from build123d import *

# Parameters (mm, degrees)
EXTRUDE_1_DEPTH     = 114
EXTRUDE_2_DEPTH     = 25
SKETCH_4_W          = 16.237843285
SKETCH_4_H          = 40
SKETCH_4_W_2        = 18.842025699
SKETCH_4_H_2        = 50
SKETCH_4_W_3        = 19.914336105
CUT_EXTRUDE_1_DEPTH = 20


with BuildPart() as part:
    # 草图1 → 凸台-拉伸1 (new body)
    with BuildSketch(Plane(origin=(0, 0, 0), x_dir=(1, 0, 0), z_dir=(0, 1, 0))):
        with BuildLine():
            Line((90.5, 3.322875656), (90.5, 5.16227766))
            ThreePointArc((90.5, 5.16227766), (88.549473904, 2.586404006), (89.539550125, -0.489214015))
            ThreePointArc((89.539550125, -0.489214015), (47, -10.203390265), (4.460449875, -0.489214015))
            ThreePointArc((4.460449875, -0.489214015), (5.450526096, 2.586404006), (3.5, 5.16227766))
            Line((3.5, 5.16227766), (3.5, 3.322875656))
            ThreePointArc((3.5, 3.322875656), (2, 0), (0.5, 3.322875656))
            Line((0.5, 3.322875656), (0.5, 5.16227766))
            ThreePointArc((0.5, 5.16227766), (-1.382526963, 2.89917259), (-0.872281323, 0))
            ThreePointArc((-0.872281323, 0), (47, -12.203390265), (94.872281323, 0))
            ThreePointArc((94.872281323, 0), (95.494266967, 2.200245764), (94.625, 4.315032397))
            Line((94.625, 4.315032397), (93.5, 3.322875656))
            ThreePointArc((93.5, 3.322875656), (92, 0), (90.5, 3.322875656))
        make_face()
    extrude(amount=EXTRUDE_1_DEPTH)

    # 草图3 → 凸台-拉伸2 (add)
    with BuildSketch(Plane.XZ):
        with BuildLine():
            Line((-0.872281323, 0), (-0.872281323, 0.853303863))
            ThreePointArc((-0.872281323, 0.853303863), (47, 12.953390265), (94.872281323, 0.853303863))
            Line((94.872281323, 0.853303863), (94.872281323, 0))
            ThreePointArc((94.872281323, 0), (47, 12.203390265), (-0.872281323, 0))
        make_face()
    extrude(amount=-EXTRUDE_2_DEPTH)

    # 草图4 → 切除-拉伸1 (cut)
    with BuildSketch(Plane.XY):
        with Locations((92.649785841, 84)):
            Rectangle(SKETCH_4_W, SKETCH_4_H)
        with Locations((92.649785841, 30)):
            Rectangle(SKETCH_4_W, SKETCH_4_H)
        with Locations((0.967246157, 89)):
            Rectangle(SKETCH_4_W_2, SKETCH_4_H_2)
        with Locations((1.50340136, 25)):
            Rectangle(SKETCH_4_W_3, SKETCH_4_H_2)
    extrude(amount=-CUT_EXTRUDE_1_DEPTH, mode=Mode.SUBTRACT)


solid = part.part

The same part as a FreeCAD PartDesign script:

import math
import FreeCAD as App
import Part
import Sketcher
from FreeCAD import Vector
Q = App.Units.Quantity


def add_polygon(sketch, points):
    """Adds a closed chain of lines whose ends are joined by coincident constraints."""
    first, n = sketch.GeometryCount, len(points)
    for a, b in zip(points, points[1:] + points[:1]):
        sketch.addGeometry(Part.LineSegment(App.Vector(*a, 0), App.Vector(*b, 0)), False)
    for i in range(n):
        sketch.addConstraint(Sketcher.Constraint("Coincident", first + i, 2, first + (i + 1) % n, 1))

doc = App.newDocument("Part")
body = doc.addObject("PartDesign::Body", "Body")

sketch1 = body.newObject("Sketcher::SketchObject", "Sketch")
sketch1.AttachmentSupport = (doc.getObject("XZ_Plane"), [""])
sketch1.MapMode = "FlatFace"
sketch1.addGeometry(Part.LineSegment(Vector(90.5, -3.3, 0), Vector(90.5, -5.2, 0)), False)
sketch1.addGeometry(Part.ArcOfCircle(Part.Circle(Vector(92, -2, 0), Vector(0, 0, 1), 3.5), math.radians(135), math.radians(245)), False)
sketch1.addGeometry(Part.ArcOfCircle(Part.Circle(Vector(47, -87.8, 0), Vector(0, 0, 1), 98), math.radians(64), math.radians(116)), False)
sketch1.addGeometry(Part.ArcOfCircle(Part.Circle(Vector(2, -2, 0), Vector(0, 0, 1), 3.5), math.radians(-65), math.radians(45)), False)
sketch1.addGeometry(Part.LineSegment(Vector(3.5, -5.2, 0), Vector(3.5, -3.3, 0)), False)
sketch1.addGeometry(Part.ArcOfCircle(Part.Circle(Vector(2, -2, 0), Vector(0, 0, 1), 2), math.radians(-41), math.radians(221)), False)
sketch1.addGeometry(Part.LineSegment(Vector(0.5, -3.3, 0), Vector(0.5, -5.2, 0)), False)
sketch1.addGeometry(Part.ArcOfCircle(Part.Circle(Vector(2, -2, 0), Vector(0, 0, 1), 3.5), math.radians(145), math.radians(245)), False)
sketch1.addGeometry(Part.ArcOfCircle(Part.Circle(Vector(47, -87.8, 0), Vector(0, 0, 1), 100), math.radians(61), math.radians(119)), False)
sketch1.addGeometry(Part.ArcOfCircle(Part.Circle(Vector(92, -2, 0), Vector(0, 0, 1), 3.5), math.radians(-41), math.radians(35)), False)
sketch1.addGeometry(Part.LineSegment(Vector(94.6, -4.3, 0), Vector(93.5, -3.3, 0)), False)
sketch1.addGeometry(Part.ArcOfCircle(Part.Circle(Vector(92, -2, 0), Vector(0, 0, 1), 2), math.radians(-41), math.radians(221)), False)
sketch1.addConstraint(Sketcher.Constraint("Coincident", 0, 2, 1, 2))
sketch1.addConstraint(Sketcher.Constraint("Coincident", 1, 1, 2, 1))
sketch1.addConstraint(Sketcher.Constraint("Coincident", 2, 2, 3, 2))
sketch1.addConstraint(Sketcher.Constraint("Coincident", 3, 1, 4, 1))
sketch1.addConstraint(Sketcher.Constraint("Coincident", 4, 2, 5, 1))
sketch1.addConstraint(Sketcher.Constraint("Coincident", 5, 2, 6, 1))
sketch1.addConstraint(Sketcher.Constraint("Coincident", 6, 2, 7, 2))
sketch1.addConstraint(Sketcher.Constraint("Coincident", 7, 1, 8, 2))
sketch1.addConstraint(Sketcher.Constraint("Coincident", 8, 1, 9, 2))
sketch1.addConstraint(Sketcher.Constraint("Coincident", 9, 1, 10, 1))
sketch1.addConstraint(Sketcher.Constraint("Coincident", 10, 2, 11, 1))
sketch1.addConstraint(Sketcher.Constraint("Coincident", 11, 2, 0, 1))
sketch1.addConstraint(Sketcher.Constraint("Vertical", 0))
sketch1.addConstraint(Sketcher.Constraint("Vertical", 4))
sketch1.addConstraint(Sketcher.Constraint("Vertical", 6))
sketch1.addConstraint(Sketcher.Constraint("Coincident", 5, 3, 3, 3))
sketch1.addConstraint(Sketcher.Constraint("Coincident", 7, 3, 3, 3))
sketch1.addConstraint(Sketcher.Constraint("Coincident", 8, 3, 2, 3))
sketch1.addConstraint(Sketcher.Constraint("Coincident", 9, 3, 1, 3))
sketch1.addConstraint(Sketcher.Constraint("Coincident", 11, 3, 1, 3))
sketch1.addConstraint(Sketcher.Constraint("Equal", 1, 3))
sketch1.addConstraint(Sketcher.Constraint("Equal", 3, 7))
sketch1.addConstraint(Sketcher.Constraint("Equal", 7, 9))
sketch1.addConstraint(Sketcher.Constraint("Equal", 5, 11))
sketch1.addConstraint(Sketcher.Constraint("PointOnObject", 7, 1, -1))
sketch1.addConstraint(Sketcher.Constraint("PointOnObject", 8, 1, -1))
sketch1.addConstraint(Sketcher.Constraint("Horizontal", 1, 3, 3, 3))
sketch1.addConstraint(Sketcher.Constraint("Horizontal", 0, 2, 3, 1))
sketch1.addConstraint(Sketcher.Constraint("Horizontal", 4, 2, 5, 2))
sketch1.addConstraint(Sketcher.Constraint("Horizontal", 5, 2, 10, 2))
sketch1.addConstraint(Sketcher.Constraint("Radius", 2, Q("98 mm")))
sketch1.addConstraint(Sketcher.Constraint("Radius", 5, Q("2 mm")))
sketch1.addConstraint(Sketcher.Constraint("Radius", 8, Q("100 mm")))
sketch1.addConstraint(Sketcher.Constraint("Radius", 1, Q("3.5 mm")))
sketch1.addConstraint(Sketcher.Constraint("DistanceX", -1, 1, 1, 3, Q("92 mm")))
sketch1.addConstraint(Sketcher.Constraint("DistanceY", 1, 3, -1, 1, Q("2 mm")))
sketch1.addConstraint(Sketcher.Constraint("DistanceX", -1, 1, 2, 3, Q("47 mm")))
sketch1.addConstraint(Sketcher.Constraint("DistanceX", 5, 2, 4, 2, Q("3 mm")))
sketch1.addConstraint(Sketcher.Constraint("DistanceX", -1, 1, 9, 1, Q("94.625 mm")))
pad1 = body.newObject("PartDesign::Pad", "Pad")
pad1.Profile = sketch1
pad1.Length = 114
pad1.Reversed = True

sketch2 = body.newObject("Sketcher::SketchObject", "Sketch001")
sketch2.AttachmentSupport = (doc.getObject("XZ_Plane"), [""])
sketch2.MapMode = "FlatFace"
sketch2.addGeometry(Part.LineSegment(Vector(-0.9, 0.9, 0), Vector(-0.9, 0, 0)), False)
sketch2.addGeometry(Part.ArcOfCircle(Part.Circle(Vector(47, -87.8, 0), Vector(0, 0, 1), 100), math.radians(61), math.radians(119)), False)
sketch2.addGeometry(Part.LineSegment(Vector(94.9, 0, 0), Vector(94.9, 0.9, 0)), False)
sketch2.addGeometry(Part.ArcOfCircle(Part.Circle(Vector(47, -87.8, 0), Vector(0, 0, 1), 100.8), math.radians(62), math.radians(118)), False)
sketch2.addConstraint(Sketcher.Constraint("Coincident", 0, 2, 1, 2))
sketch2.addConstraint(Sketcher.Constraint("Coincident", 1, 1, 2, 1))
sketch2.addConstraint(Sketcher.Constraint("Coincident", 2, 2, 3, 1))
sketch2.addConstraint(Sketcher.Constraint("Coincident", 3, 2, 0, 1))
sketch2.addConstraint(Sketcher.Constraint("Vertical", 0))
sketch2.addConstraint(Sketcher.Constraint("Vertical", 2))
sketch2.addConstraint(Sketcher.Constraint("Coincident", 3, 3, 1, 3))
sketch2.addConstraint(Sketcher.Constraint("PointOnObject", 0, 2, -1))
sketch2.addConstraint(Sketcher.Constraint("PointOnObject", 1, 1, -1))
sketch2.addConstraint(Sketcher.Constraint("Radius", 1, Q("100 mm")))
sketch2.addConstraint(Sketcher.Constraint("Radius", 3, Q("100.75 mm")))
sketch2.addConstraint(Sketcher.Constraint("DistanceX", -1, 1, 1, 3, Q("47 mm")))
sketch2.addConstraint(Sketcher.Constraint("DistanceY", 1, 3, -1, 1, Q("87.79661 mm")))
pad2 = body.newObject("PartDesign::Pad", "Pad001")
pad2.Profile = sketch2
pad2.Length = 25
pad2.Reversed = True

sketch3 = body.newObject("Sketcher::SketchObject", "Sketch002")
sketch3.AttachmentSupport = (doc.getObject("XY_Plane"), [""])
sketch3.MapMode = "FlatFace"
add_polygon(sketch3, [(85, 104), (85, 64), (101, 64), (101, 104)])
add_polygon(sketch3, [(85, 50), (85, 10), (101, 10), (101, 50)])
add_polygon(sketch3, [(-8, 114), (-8, 64), (10, 64), (10, 114)])
add_polygon(sketch3, [(-8, 50), (-8, 0), (11, 0), (11, 50)])
sketch3.addConstraint(Sketcher.Constraint("Vertical", 0))
sketch3.addConstraint(Sketcher.Constraint("Horizontal", 1))
sketch3.addConstraint(Sketcher.Constraint("Vertical", 2))
sketch3.addConstraint(Sketcher.Constraint("Horizontal", 3))
sketch3.addConstraint(Sketcher.Constraint("Vertical", 4))
sketch3.addConstraint(Sketcher.Constraint("Horizontal", 5))
sketch3.addConstraint(Sketcher.Constraint("Vertical", 6))
sketch3.addConstraint(Sketcher.Constraint("Horizontal", 7))
sketch3.addConstraint(Sketcher.Constraint("Vertical", 8))
sketch3.addConstraint(Sketcher.Constraint("Horizontal", 9))
sketch3.addConstraint(Sketcher.Constraint("Vertical", 10))
sketch3.addConstraint(Sketcher.Constraint("Horizontal", 11))
sketch3.addConstraint(Sketcher.Constraint("Vertical", 12))
sketch3.addConstraint(Sketcher.Constraint("Horizontal", 13))
sketch3.addConstraint(Sketcher.Constraint("Vertical", 14))
sketch3.addConstraint(Sketcher.Constraint("Horizontal", 15))
sketch3.addConstraint(Sketcher.Constraint("PointOnObject", 12, 2, -1))
sketch3.addConstraint(Sketcher.Constraint("Horizontal", 1, 2, 8, 2))
sketch3.addConstraint(Sketcher.Constraint("Horizontal", 7, 2, 14, 2))
sketch3.addConstraint(Sketcher.Constraint("Vertical", 3, 2, 4, 2))
sketch3.addConstraint(Sketcher.Constraint("Vertical", 2, 2, 5, 2))
sketch3.addConstraint(Sketcher.Constraint("Vertical", 11, 2, 12, 2))
sketch3.addConstraint(Sketcher.Constraint("Equal", 2, 4))
sketch3.addConstraint(Sketcher.Constraint("Equal", 10, 12))
sketch3.addConstraint(Sketcher.Constraint("DistanceY", 0, 2, 0, 1, Q("40 mm")))
sketch3.addConstraint(Sketcher.Constraint("DistanceY", 8, 2, 8, 1, Q("50 mm")))
sketch3.addConstraint(Sketcher.Constraint("DistanceY", -1, 1, 0, 2, Q("64 mm")))
sketch3.addConstraint(Sketcher.Constraint("DistanceX", 1, 1, 1, 2, Q("16.237843 mm")))
sketch3.addConstraint(Sketcher.Constraint("DistanceX", 9, 1, 9, 2, Q("18.842026 mm")))
sketch3.addConstraint(Sketcher.Constraint("DistanceX", 13, 1, 13, 2, Q("19.914336 mm")))
sketch3.addConstraint(Sketcher.Constraint("DistanceX", -1, 1, 9, 2, Q("10.388259 mm")))
sketch3.addConstraint(Sketcher.Constraint("DistanceX", 8, 2, 0, 2, Q("92.984631 mm")))
pocket1 = body.newObject("PartDesign::Pocket", "Pocket")
pocket1.Profile = sketch3
pocket1.Length = 20

doc.recompute()
